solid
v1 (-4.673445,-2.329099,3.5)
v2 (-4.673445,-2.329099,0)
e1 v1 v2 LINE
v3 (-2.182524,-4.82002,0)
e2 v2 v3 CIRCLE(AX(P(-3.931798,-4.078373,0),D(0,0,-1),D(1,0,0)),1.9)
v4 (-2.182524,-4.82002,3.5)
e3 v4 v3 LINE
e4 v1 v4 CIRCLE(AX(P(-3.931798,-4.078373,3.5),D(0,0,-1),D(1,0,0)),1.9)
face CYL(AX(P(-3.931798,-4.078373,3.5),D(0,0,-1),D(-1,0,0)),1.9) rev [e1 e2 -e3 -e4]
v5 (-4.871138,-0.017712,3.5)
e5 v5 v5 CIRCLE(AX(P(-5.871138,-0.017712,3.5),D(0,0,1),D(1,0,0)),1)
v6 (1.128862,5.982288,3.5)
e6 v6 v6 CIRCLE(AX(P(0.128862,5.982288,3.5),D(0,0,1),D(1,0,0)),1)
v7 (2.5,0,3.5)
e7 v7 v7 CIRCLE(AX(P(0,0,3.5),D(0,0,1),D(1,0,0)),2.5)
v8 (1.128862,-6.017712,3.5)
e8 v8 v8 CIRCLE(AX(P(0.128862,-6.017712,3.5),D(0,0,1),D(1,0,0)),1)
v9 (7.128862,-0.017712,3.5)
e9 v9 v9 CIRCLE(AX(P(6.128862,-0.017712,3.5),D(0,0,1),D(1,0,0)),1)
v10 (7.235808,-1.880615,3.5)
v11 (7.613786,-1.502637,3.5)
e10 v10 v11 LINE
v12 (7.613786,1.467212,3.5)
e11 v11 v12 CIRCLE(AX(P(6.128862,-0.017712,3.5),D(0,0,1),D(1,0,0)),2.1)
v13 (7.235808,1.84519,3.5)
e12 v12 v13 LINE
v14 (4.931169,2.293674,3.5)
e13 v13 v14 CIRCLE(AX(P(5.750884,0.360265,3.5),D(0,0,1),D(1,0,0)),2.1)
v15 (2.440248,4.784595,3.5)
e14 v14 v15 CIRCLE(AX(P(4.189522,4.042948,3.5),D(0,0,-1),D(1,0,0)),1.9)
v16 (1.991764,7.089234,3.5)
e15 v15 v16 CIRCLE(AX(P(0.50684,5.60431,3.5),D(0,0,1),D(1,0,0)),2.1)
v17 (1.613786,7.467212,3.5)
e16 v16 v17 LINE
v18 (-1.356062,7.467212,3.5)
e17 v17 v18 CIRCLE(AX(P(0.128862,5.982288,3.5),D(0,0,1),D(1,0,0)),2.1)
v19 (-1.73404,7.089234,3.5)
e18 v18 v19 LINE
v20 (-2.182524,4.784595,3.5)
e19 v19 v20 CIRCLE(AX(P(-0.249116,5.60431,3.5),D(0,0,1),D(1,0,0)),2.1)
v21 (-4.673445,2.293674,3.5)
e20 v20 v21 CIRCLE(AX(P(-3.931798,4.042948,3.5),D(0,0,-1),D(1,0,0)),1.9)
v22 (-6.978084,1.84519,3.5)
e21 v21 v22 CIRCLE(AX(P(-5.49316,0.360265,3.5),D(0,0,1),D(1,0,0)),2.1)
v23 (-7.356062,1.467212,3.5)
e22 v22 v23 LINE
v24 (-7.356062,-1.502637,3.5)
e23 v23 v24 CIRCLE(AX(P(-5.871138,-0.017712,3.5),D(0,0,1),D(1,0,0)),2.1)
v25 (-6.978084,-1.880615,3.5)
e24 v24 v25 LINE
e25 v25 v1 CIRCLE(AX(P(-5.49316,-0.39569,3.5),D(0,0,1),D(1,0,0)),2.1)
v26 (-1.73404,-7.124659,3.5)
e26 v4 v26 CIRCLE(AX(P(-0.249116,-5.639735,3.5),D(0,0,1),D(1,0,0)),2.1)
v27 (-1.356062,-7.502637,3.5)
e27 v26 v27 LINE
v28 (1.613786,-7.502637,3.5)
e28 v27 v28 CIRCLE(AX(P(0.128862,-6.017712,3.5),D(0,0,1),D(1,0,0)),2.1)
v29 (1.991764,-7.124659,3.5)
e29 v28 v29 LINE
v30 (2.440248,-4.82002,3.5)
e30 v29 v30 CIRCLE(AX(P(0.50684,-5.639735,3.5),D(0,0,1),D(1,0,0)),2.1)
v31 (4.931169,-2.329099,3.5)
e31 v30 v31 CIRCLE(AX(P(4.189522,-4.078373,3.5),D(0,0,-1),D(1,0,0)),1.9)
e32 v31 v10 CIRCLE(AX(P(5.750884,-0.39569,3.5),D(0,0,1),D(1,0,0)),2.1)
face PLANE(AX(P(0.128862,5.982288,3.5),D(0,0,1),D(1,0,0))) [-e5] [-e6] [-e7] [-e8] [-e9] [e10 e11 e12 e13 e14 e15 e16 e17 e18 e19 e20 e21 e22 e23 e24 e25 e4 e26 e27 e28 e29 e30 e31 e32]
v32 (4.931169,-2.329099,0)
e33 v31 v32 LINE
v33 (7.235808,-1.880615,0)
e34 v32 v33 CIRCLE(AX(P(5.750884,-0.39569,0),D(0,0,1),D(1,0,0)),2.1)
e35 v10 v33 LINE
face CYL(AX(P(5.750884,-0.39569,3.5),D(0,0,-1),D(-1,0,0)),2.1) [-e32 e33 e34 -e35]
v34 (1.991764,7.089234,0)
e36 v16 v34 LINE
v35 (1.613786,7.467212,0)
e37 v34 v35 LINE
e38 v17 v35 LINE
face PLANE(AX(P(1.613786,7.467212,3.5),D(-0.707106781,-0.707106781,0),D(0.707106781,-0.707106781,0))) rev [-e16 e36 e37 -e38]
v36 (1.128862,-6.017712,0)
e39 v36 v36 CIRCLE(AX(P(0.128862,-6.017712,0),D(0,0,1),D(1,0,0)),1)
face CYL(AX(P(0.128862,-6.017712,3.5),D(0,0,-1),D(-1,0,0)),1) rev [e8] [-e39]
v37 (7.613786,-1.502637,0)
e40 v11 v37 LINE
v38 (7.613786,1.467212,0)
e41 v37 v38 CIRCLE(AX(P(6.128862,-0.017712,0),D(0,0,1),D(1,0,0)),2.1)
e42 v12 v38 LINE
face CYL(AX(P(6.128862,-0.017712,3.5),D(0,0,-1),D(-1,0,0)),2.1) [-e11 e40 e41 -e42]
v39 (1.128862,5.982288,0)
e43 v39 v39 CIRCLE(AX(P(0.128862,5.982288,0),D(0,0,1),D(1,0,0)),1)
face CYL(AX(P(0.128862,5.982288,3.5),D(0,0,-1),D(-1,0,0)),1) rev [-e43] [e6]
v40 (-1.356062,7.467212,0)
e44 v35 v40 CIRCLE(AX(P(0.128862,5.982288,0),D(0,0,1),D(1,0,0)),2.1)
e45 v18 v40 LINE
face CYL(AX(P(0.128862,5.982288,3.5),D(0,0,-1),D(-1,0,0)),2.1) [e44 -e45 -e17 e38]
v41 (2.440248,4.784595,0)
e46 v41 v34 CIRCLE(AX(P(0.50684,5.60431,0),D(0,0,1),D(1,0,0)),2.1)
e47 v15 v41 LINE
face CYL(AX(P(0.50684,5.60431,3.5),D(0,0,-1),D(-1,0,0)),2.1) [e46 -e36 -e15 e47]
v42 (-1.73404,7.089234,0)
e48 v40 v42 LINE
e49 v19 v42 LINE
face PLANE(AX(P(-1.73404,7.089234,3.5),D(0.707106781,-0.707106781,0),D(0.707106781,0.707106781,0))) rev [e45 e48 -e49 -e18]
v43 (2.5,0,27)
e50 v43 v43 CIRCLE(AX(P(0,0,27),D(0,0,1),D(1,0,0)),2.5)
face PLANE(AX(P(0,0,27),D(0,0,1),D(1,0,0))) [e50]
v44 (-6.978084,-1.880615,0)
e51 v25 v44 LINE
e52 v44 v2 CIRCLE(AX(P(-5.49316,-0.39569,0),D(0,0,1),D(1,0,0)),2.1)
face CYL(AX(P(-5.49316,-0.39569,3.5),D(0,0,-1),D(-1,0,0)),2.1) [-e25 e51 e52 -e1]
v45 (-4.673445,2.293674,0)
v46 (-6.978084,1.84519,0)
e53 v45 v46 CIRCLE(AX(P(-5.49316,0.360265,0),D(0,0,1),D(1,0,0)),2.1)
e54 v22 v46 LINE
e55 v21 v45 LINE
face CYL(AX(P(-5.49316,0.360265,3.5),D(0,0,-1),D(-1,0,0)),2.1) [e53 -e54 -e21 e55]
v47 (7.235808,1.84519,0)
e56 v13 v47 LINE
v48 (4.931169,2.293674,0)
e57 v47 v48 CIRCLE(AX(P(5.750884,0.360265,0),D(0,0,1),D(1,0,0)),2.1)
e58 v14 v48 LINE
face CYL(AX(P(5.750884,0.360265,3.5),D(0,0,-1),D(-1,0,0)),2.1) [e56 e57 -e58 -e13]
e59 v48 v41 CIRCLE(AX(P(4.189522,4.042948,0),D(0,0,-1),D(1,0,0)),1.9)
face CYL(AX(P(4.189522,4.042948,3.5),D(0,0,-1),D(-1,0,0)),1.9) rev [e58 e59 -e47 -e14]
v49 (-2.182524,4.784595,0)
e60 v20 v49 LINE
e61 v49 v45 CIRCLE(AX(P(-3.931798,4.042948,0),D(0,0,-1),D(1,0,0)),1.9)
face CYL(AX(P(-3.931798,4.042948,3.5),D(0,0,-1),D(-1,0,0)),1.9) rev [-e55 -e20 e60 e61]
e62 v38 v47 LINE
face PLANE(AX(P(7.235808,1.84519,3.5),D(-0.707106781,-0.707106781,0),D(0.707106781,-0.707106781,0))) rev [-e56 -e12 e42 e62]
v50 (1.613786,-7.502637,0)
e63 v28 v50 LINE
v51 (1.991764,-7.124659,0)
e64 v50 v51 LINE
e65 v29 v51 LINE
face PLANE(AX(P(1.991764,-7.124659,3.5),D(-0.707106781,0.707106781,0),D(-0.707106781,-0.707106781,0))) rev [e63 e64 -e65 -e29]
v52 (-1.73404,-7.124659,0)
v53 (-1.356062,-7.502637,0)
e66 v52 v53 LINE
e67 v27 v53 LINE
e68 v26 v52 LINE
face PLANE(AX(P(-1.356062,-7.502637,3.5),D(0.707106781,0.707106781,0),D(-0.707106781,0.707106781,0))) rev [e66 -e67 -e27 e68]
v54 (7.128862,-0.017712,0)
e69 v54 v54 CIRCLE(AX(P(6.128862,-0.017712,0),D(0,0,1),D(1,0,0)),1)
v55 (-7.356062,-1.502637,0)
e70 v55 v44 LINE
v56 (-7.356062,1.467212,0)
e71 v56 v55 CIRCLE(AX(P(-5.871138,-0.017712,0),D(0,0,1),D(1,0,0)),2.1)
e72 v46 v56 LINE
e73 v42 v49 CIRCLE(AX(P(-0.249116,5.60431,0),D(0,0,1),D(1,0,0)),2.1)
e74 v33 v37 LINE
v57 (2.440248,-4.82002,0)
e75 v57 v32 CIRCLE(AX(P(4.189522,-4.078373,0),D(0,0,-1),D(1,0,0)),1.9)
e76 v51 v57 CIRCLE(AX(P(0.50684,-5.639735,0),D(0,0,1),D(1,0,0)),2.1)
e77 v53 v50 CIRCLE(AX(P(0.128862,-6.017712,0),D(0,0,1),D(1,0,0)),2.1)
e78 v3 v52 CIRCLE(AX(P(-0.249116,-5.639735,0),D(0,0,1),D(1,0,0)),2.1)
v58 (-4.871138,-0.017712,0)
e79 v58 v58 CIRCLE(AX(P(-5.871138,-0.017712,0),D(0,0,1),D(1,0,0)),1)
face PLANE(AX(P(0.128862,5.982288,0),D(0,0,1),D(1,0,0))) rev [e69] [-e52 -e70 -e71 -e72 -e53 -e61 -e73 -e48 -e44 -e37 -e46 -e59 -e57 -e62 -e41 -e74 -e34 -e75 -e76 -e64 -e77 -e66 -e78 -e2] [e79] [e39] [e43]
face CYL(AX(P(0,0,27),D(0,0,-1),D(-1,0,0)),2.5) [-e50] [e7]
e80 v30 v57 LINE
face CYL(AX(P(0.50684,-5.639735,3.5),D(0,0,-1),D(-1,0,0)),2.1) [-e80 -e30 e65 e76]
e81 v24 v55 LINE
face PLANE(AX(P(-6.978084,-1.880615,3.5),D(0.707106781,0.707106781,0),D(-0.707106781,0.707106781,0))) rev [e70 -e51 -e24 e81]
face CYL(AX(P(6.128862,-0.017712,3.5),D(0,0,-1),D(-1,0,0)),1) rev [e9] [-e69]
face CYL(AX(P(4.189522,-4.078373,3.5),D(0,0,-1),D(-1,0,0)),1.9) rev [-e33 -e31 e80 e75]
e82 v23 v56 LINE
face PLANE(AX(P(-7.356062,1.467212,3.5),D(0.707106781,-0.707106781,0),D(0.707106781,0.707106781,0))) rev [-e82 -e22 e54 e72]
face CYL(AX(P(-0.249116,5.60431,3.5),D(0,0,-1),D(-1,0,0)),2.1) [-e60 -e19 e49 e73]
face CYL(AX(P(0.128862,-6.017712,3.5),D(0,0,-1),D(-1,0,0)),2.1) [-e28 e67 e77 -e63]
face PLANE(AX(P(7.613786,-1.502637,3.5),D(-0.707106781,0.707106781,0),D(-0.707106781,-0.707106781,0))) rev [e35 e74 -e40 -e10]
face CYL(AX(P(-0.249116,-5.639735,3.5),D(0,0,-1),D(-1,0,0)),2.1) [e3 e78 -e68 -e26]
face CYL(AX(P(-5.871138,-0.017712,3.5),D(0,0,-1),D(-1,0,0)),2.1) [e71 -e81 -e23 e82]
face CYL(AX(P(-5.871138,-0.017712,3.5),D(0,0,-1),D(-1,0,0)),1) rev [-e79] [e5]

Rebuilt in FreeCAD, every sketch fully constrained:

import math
import FreeCAD as App
import Part
import Sketcher
from FreeCAD import Vector

doc = App.newDocument("Part")
body = doc.addObject("PartDesign::Body", "Body")

# Sketch on XY plane
sketch1 = body.newObject("Sketcher::SketchObject", "Sketch")
sketch1.AttachmentSupport = (doc.getObject("XY_Plane"), [""])
sketch1.MapMode = "FlatFace"
sketch1.addGeometry(Part.LineSegment(Vector(-1.4, 7.5, 0), Vector(-1.7, 7.1, 0)), False)
sketch1.addGeometry(Part.ArcOfCircle(Part.Circle(Vector(-0.2, 5.6, 0), Vector(0, 0, 1), 2.1), math.radians(135), math.radians(203)), False)
sketch1.addGeometry(Part.ArcOfCircle(Part.Circle(Vector(-3.9, 4, 0), Vector(0, 0, 1), 1.9), math.radians(0), math.radians(23)), False)
sketch1.addGeometry(Part.ArcOfCircle(Part.Circle(Vector(-3.9, 4, 0), Vector(0, 0, 1), 1.9), math.radians(-113), math.radians(0)), False)
sketch1.addGeometry(Part.ArcOfCircle(Part.Circle(Vector(-5.5, 0.4, 0), Vector(0, 0, 1), 2.1), math.radians(67), math.radians(135)), False)
sketch1.addGeometry(Part.LineSegment(Vector(-7, 1.8, 0), Vector(-7.4, 1.5, 0)), False)
sketch1.addGeometry(Part.ArcOfCircle(Part.Circle(Vector(-5.9, 0, 0), Vector(0, 0, 1), 2.1), math.radians(135), math.radians(225)), False)
sketch1.addGeometry(Part.LineSegment(Vector(-7.4, -1.5, 0), Vector(-7, -1.9, 0)), False)
sketch1.addGeometry(Part.ArcOfCircle(Part.Circle(Vector(-5.5, -0.4, 0), Vector(0, 0, 1), 2.1), math.radians(-135), math.radians(-67)), False)
sketch1.addGeometry(Part.ArcOfCircle(Part.Circle(Vector(-3.9, -4.1, 0), Vector(0, 0, 1), 1.9), math.radians(0), math.radians(113)), False)
sketch1.addGeometry(Part.ArcOfCircle(Part.Circle(Vector(-3.9, -4.1, 0), Vector(0, 0, 1), 1.9), math.radians(-23), math.radians(0)), False)
sketch1.addGeometry(Part.ArcOfCircle(Part.Circle(Vector(-0.2, -5.6, 0), Vector(0, 0, 1), 2.1), math.radians(157), math.radians(225)), False)
sketch1.addGeometry(Part.LineSegment(Vector(-1.7, -7.1, 0), Vector(-1.4, -7.5, 0)), False)
sketch1.addGeometry(Part.ArcOfCircle(Part.Circle(Vector(0.1, -6, 0), Vector(0, 0, 1), 2.1), math.radians(-135), math.radians(-45)), False)
sketch1.addGeometry(Part.LineSegment(Vector(1.6, -7.5, 0), Vector(2, -7.1, 0)), False)
sketch1.addGeometry(Part.ArcOfCircle(Part.Circle(Vector(0.5, -5.6, 0), Vector(0, 0, 1), 2.1), math.radians(-45), math.radians(0)), False)
sketch1.addGeometry(Part.ArcOfCircle(Part.Circle(Vector(0.5, -5.6, 0), Vector(0, 0, 1), 2.1), math.radians(0), math.radians(23)), False)
sketch1.addGeometry(Part.ArcOfCircle(Part.Circle(Vector(4.2, -4.1, 0), Vector(0, 0, 1), 1.9), math.radians(67), math.radians(203)), False)
sketch1.addGeometry(Part.ArcOfCircle(Part.Circle(Vector(5.8, -0.4, 0), Vector(0, 0, 1), 2.1), math.radians(-113), math.radians(-45)), False)
sketch1.addGeometry(Part.LineSegment(Vector(7.2, -1.9, 0), Vector(7.6, -1.5, 0)), False)
sketch1.addGeometry(Part.ArcOfCircle(Part.Circle(Vector(6.1, 0, 0), Vector(0, 0, 1), 2.1), math.radians(-45), math.radians(0)), False)
sketch1.addGeometry(Part.ArcOfCircle(Part.Circle(Vector(6.1, 0, 0), Vector(0, 0, 1), 2.1), math.radians(0), math.radians(45)), False)
sketch1.addGeometry(Part.LineSegment(Vector(7.6, 1.5, 0), Vector(7.2, 1.8, 0)), False)
sketch1.addGeometry(Part.ArcOfCircle(Part.Circle(Vector(5.8, 0.4, 0), Vector(0, 0, 1), 2.1), math.radians(45), math.radians(113)), False)
sketch1.addGeometry(Part.ArcOfCircle(Part.Circle(Vector(4.2, 4, 0), Vector(0, 0, 1), 1.9), math.radians(157), math.radians(293)), False)
sketch1.addGeometry(Part.ArcOfCircle(Part.Circle(Vector(0.5, 5.6, 0), Vector(0, 0, 1), 2.1), math.radians(-23), math.radians(0)), False)
sketch1.addGeometry(Part.ArcOfCircle(Part.Circle(Vector(0.5, 5.6, 0), Vector(0, 0, 1), 2.1), math.radians(0), math.radians(45)), False)
sketch1.addGeometry(Part.LineSegment(Vector(2, 7.1, 0), Vector(1.6, 7.5, 0)), False)
sketch1.addGeometry(Part.ArcOfCircle(Part.Circle(Vector(0.1, 6, 0), Vector(0, 0, 1), 2.1), math.radians(45), math.radians(135)), False)
sketch1.addGeometry(Part.Circle(Vector(0.1, -6, 0), Vector(0, 0, 1), 1), False)
sketch1.addGeometry(Part.Circle(Vector(6.1, 0, 0), Vector(0, 0, 1), 1), False)
sketch1.addGeometry(Part.Circle(Vector(-5.9, 0, 0), Vector(0, 0, 1), 1), False)
sketch1.addGeometry(Part.Circle(Vector(0.1, 6, 0), Vector(0, 0, 1), 1), False)
sketch1.addConstraint(Sketcher.Constraint("Tangent", 0, 2, 1, 1))
sketch1.addConstraint(Sketcher.Constraint("Tangent", 1, 2, 2, 2))
sketch1.addConstraint(Sketcher.Constraint("Tangent", 2, 1, 3, 2))
sketch1.addConstraint(Sketcher.Constraint("Tangent", 3, 1, 4, 1))
sketch1.addConstraint(Sketcher.Constraint("Tangent", 4, 2, 5, 1))
sketch1.addConstraint(Sketcher.Constraint("Tangent", 5, 2, 6, 1))
sketch1.addConstraint(Sketcher.Constraint("Tangent", 6, 2, 7, 1))
sketch1.addConstraint(Sketcher.Constraint("Tangent", 7, 2, 8, 1))
sketch1.addConstraint(Sketcher.Constraint("Tangent", 8, 2, 9, 2))
sketch1.addConstraint(Sketcher.Constraint("Tangent", 9, 1, 10, 2))
sketch1.addConstraint(Sketcher.Constraint("Tangent", 10, 1, 11, 1))
sketch1.addConstraint(Sketcher.Constraint("Tangent", 11, 2, 12, 1))
sketch1.addConstraint(Sketcher.Constraint("Tangent", 12, 2, 13, 1))
sketch1.addConstraint(Sketcher.Constraint("Tangent", 13, 2, 14, 1))
sketch1.addConstraint(Sketcher.Constraint("Tangent", 14, 2, 15, 1))
sketch1.addConstraint(Sketcher.Constraint("Tangent", 15, 2, 16, 1))
sketch1.addConstraint(Sketcher.Constraint("Tangent", 16, 2, 17, 2))
sketch1.addConstraint(Sketcher.Constraint("Tangent", 17, 1, 18, 1))
sketch1.addConstraint(Sketcher.Constraint("Tangent", 18, 2, 19, 1))
sketch1.addConstraint(Sketcher.Constraint("Tangent", 19, 2, 20, 1))
sketch1.addConstraint(Sketcher.Constraint("Tangent", 20, 2, 21, 1))
sketch1.addConstraint(Sketcher.Constraint("Tangent", 21, 2, 22, 1))
sketch1.addConstraint(Sketcher.Constraint("Tangent", 22, 2, 23, 1))
sketch1.addConstraint(Sketcher.Constraint("Tangent", 23, 2, 24, 2))
sketch1.addConstraint(Sketcher.Constraint("Tangent", 24, 1, 25, 1))
sketch1.addConstraint(Sketcher.Constraint("Tangent", 25, 2, 26, 1))
sketch1.addConstraint(Sketcher.Constraint("Tangent", 26, 2, 27, 1))
sketch1.addConstraint(Sketcher.Constraint("Tangent", 27, 2, 28, 1))
sketch1.addConstraint(Sketcher.Constraint("Tangent", 28, 2, 0, 1))
sketch1.addConstraint(Sketcher.Constraint("Coincident", 29, 3, 13, 3))
sketch1.addConstraint(Sketcher.Constraint("Coincident", 30, 3, 20, 3))
sketch1.addConstraint(Sketcher.Constraint("Coincident", 31, 3, 6, 3))
sketch1.addConstraint(Sketcher.Constraint("Coincident", 32, 3, 28, 3))
sketch1.addConstraint(Sketcher.Constraint("Equal", 2, 3))
sketch1.addConstraint(Sketcher.Constraint("Equal", 1, 4))
sketch1.addConstraint(Sketcher.Constraint("Equal", 4, 6))
sketch1.addConstraint(Sketcher.Constraint("Equal", 6, 8))
sketch1.addConstraint(Sketcher.Constraint("Equal", 3, 9))
sketch1.addConstraint(Sketcher.Constraint("Equal", 9, 10))
sketch1.addConstraint(Sketcher.Constraint("Equal", 8, 11))
sketch1.addConstraint(Sketcher.Constraint("Equal", 11, 13))
sketch1.addConstraint(Sketcher.Constraint("Equal", 13, 15))
sketch1.addConstraint(Sketcher.Constraint("Equal", 15, 16))
sketch1.addConstraint(Sketcher.Constraint("Equal", 10, 17))
sketch1.addConstraint(Sketcher.Constraint("Equal", 16, 18))
sketch1.addConstraint(Sketcher.Constraint("Equal", 18, 20))
sketch1.addConstraint(Sketcher.Constraint("Equal", 20, 21))
sketch1.addConstraint(Sketcher.Constraint("Equal", 21, 23))
sketch1.addConstraint(Sketcher.Constraint("Equal", 17, 24))
sketch1.addConstraint(Sketcher.Constraint("Equal", 23, 25))
sketch1.addConstraint(Sketcher.Constraint("Equal", 25, 26))
sketch1.addConstraint(Sketcher.Constraint("Equal", 26, 28))
sketch1.addConstraint(Sketcher.Constraint("Equal", 29, 30))
sketch1.addConstraint(Sketcher.Constraint("Equal", 30, 31))
sketch1.addConstraint(Sketcher.Constraint("Equal", 31, 32))
sketch1.addConstraint(Sketcher.Constraint("Parallel", 0, 5))
sketch1.addConstraint(Sketcher.Constraint("Perpendicular", 5, 7))
sketch1.addConstraint(Sketcher.Constraint("Parallel", 7, 12))
sketch1.addConstraint(Sketcher.Constraint("Perpendicular", 12, 14))
sketch1.addConstraint(Sketcher.Constraint("Parallel", 14, 19))
sketch1.addConstraint(Sketcher.Constraint("Perpendicular", 19, 22))
sketch1.addConstraint(Sketcher.Constraint("Parallel", 22, 27))
sketch1.addConstraint(Sketcher.Constraint("Horizontal", 11, 3, 15, 3))
sketch1.addConstraint(Sketcher.Constraint("Horizontal", 10, 3, 17, 3))
sketch1.addConstraint(Sketcher.Constraint("Horizontal", 8, 3, 18, 3))
sketch1.addConstraint(Sketcher.Constraint("Horizontal", 6, 3, 20, 3))
sketch1.addConstraint(Sketcher.Constraint("Horizontal", 4, 3, 23, 3))
sketch1.addConstraint(Sketcher.Constraint("Horizontal", 3, 3, 24, 3))
sketch1.addConstraint(Sketcher.Constraint("Horizontal", 1, 3, 25, 3))
sketch1.addConstraint(Sketcher.Constraint("Horizontal", 24, 3, 2, 1))
sketch1.addConstraint(Sketcher.Constraint("Horizontal", 17, 3, 9, 1))
sketch1.addConstraint(Sketcher.Constraint("Horizontal", 12, 2, 13, 2))
sketch1.addConstraint(Sketcher.Constraint("Horizontal", 16, 3, 15, 2))
sketch1.addConstraint(Sketcher.Constraint("Horizontal", 31, 3, 20, 2))
sketch1.addConstraint(Sketcher.Constraint("Horizontal", 26, 3, 25, 2))
sketch1.addConstraint(Sketcher.Constraint("Vertical", 4, 3, 8, 3))
sketch1.addConstraint(Sketcher.Constraint("Vertical", 3, 3, 9, 3))
sketch1.addConstraint(Sketcher.Constraint("Vertical", 1, 3, 11, 3))
sketch1.addConstraint(Sketcher.Constraint("Equal", 0, 5))
sketch1.addConstraint(Sketcher.Constraint("Diameter", 29, 2.0))
sketch1.addConstraint(Sketcher.Constraint("Radius", 1, 2.1))
sketch1.addConstraint(Sketcher.Constraint("Radius", 2, 1.9))
sketch1.addConstraint(Sketcher.Constraint("DistanceY", 8, 3, 1, 3, 6.0))
sketch1.addConstraint(Sketcher.Constraint("DistanceX", 6, 3, 13, 3, 6.0))
sketch1.addConstraint(Sketcher.Constraint("DistanceX", 2, 3, -1, 1, 3.931798))
sketch1.addConstraint(Sketcher.Constraint("DistanceY", 8, 2, -1, 1, 2.329099))
sketch1.addConstraint(Sketcher.Constraint("Distance", 0, 0.534541))
pad1 = body.newObject("PartDesign::Pad", "Pad")
pad1.Profile = sketch1
pad1.Length = 3.5

# Sketch on XY plane
sketch2 = body.newObject("Sketcher::SketchObject", "Sketch001")
sketch2.AttachmentSupport = (doc.getObject("XY_Plane"), [""])
sketch2.MapMode = "FlatFace"
sketch2.AttachmentOffset = App.Placement(Vector(0, 0, 3.5), App.Rotation())
sketch2.addGeometry(Part.Circle(Vector(0, 0, 0), Vector(0, 0, 1), 2.5), False)
sketch2.addConstraint(Sketcher.Constraint("Coincident", 0, 3, -1, 1))
sketch2.addConstraint(Sketcher.Constraint("Diameter", 0, 5.0))
pad2 = body.newObject("PartDesign::Pad", "Pad001")
pad2.Profile = sketch2
pad2.Length = 23.5

doc.recompute()
